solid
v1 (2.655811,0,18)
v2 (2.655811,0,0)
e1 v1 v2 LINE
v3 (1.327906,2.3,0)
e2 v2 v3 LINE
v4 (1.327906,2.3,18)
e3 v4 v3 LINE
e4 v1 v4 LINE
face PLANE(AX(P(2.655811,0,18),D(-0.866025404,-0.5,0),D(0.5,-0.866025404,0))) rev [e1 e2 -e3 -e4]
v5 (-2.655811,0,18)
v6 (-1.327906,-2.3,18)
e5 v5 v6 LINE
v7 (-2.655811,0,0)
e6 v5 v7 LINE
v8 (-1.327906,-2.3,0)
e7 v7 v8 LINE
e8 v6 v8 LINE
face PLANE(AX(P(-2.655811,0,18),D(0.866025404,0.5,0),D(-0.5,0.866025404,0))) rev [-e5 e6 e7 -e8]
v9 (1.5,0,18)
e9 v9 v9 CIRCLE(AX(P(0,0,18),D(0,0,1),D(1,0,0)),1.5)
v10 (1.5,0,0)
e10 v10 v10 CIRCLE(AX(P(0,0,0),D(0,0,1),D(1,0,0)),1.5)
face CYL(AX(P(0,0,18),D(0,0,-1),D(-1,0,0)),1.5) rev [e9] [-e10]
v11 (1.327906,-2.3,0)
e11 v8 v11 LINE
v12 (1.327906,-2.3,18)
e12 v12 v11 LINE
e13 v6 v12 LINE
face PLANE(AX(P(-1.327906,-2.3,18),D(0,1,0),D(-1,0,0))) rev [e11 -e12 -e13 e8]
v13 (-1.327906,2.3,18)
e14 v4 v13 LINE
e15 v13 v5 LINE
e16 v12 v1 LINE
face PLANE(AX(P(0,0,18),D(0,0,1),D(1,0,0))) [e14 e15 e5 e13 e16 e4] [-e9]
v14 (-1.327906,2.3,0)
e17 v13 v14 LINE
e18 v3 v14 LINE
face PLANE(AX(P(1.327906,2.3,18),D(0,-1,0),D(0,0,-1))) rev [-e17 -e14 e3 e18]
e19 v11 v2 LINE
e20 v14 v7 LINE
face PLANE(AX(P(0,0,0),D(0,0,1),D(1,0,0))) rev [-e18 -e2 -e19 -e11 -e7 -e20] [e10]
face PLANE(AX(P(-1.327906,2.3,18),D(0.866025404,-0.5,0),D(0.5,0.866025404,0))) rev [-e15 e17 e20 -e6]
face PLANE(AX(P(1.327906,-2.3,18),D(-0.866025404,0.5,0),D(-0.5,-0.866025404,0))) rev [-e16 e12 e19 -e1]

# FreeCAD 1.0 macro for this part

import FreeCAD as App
import Part
import Sketcher
Q = App.Units.Quantity

doc = App.newDocument("Part")
body = doc.addObject("PartDesign::Body", "Body")

# Sketch on XY plane
sketch1 = body.newObject("Sketcher::SketchObject", "Sketch")
sketch1.AttachmentSupport = (doc.getObject("XY_Plane"), [""])
sketch1.MapMode = "FlatFace"
sketch1.addGeometry([
    Part.LineSegment(App.Vector(2.7, 0, 0), App.Vector(1.3, 2.3, 0)),  # 0
    Part.LineSegment(App.Vector(1.3, 2.3, 0), App.Vector(-1.3, 2.3, 0)),  # 1
    Part.LineSegment(App.Vector(-1.3, 2.3, 0), App.Vector(-2.7, 0, 0)),  # 2
    Part.LineSegment(App.Vector(-2.7, 0, 0), App.Vector(-1.3, -2.3, 0)),  # 3
    Part.LineSegment(App.Vector(-1.3, -2.3, 0), App.Vector(1.3, -2.3, 0)),  # 4
    Part.LineSegment(App.Vector(1.3, -2.3, 0), App.Vector(2.7, 0, 0)),  # 5
    Part.Circle(App.Vector(0, 0, 0), App.Vector(0, 0, 1), 1.5),  # 6
], False)
sketch1.addConstraint([
    Sketcher.Constraint("Coincident", 0, 2, 1, 1),
    Sketcher.Constraint("Coincident", 1, 2, 2, 1),
    Sketcher.Constraint("Coincident", 2, 2, 3, 1),
    Sketcher.Constraint("Coincident", 3, 2, 4, 1),
    Sketcher.Constraint("Coincident", 4, 2, 5, 1),
    Sketcher.Constraint("Coincident", 5, 2, 0, 1),
    Sketcher.Constraint("Horizontal", 1),
    Sketcher.Constraint("Horizontal", 4),
    Sketcher.Constraint("Coincident", 6, 3, -1, 1),
    Sketcher.Constraint("Symmetric", 0, 2, 3, 2, -1, 1),
    Sketcher.Constraint("Symmetric", 2, 2, 5, 2, -1, 1),
    Sketcher.Constraint("PointOnObject", 2, 2, -1),
    Sketcher.Constraint("Parallel", 2, 5),
    Sketcher.Constraint("Vertical", 1, 2, 3, 2),
    Sketcher.Constraint("Diameter", 6, 3.0),
    Sketcher.Constraint("Angle", 0, Q("120 deg")),
    Sketcher.Constraint("DistanceY", -1, 1, 0, 2, 2.3),
    Sketcher.Constraint("DistanceX", 1, 2, 1, 1, 2.655811),
])
pad1 = body.newObject("PartDesign::Pad", "Pad")
pad1.Profile = sketch1
pad1.Length = 18

doc.recompute()
